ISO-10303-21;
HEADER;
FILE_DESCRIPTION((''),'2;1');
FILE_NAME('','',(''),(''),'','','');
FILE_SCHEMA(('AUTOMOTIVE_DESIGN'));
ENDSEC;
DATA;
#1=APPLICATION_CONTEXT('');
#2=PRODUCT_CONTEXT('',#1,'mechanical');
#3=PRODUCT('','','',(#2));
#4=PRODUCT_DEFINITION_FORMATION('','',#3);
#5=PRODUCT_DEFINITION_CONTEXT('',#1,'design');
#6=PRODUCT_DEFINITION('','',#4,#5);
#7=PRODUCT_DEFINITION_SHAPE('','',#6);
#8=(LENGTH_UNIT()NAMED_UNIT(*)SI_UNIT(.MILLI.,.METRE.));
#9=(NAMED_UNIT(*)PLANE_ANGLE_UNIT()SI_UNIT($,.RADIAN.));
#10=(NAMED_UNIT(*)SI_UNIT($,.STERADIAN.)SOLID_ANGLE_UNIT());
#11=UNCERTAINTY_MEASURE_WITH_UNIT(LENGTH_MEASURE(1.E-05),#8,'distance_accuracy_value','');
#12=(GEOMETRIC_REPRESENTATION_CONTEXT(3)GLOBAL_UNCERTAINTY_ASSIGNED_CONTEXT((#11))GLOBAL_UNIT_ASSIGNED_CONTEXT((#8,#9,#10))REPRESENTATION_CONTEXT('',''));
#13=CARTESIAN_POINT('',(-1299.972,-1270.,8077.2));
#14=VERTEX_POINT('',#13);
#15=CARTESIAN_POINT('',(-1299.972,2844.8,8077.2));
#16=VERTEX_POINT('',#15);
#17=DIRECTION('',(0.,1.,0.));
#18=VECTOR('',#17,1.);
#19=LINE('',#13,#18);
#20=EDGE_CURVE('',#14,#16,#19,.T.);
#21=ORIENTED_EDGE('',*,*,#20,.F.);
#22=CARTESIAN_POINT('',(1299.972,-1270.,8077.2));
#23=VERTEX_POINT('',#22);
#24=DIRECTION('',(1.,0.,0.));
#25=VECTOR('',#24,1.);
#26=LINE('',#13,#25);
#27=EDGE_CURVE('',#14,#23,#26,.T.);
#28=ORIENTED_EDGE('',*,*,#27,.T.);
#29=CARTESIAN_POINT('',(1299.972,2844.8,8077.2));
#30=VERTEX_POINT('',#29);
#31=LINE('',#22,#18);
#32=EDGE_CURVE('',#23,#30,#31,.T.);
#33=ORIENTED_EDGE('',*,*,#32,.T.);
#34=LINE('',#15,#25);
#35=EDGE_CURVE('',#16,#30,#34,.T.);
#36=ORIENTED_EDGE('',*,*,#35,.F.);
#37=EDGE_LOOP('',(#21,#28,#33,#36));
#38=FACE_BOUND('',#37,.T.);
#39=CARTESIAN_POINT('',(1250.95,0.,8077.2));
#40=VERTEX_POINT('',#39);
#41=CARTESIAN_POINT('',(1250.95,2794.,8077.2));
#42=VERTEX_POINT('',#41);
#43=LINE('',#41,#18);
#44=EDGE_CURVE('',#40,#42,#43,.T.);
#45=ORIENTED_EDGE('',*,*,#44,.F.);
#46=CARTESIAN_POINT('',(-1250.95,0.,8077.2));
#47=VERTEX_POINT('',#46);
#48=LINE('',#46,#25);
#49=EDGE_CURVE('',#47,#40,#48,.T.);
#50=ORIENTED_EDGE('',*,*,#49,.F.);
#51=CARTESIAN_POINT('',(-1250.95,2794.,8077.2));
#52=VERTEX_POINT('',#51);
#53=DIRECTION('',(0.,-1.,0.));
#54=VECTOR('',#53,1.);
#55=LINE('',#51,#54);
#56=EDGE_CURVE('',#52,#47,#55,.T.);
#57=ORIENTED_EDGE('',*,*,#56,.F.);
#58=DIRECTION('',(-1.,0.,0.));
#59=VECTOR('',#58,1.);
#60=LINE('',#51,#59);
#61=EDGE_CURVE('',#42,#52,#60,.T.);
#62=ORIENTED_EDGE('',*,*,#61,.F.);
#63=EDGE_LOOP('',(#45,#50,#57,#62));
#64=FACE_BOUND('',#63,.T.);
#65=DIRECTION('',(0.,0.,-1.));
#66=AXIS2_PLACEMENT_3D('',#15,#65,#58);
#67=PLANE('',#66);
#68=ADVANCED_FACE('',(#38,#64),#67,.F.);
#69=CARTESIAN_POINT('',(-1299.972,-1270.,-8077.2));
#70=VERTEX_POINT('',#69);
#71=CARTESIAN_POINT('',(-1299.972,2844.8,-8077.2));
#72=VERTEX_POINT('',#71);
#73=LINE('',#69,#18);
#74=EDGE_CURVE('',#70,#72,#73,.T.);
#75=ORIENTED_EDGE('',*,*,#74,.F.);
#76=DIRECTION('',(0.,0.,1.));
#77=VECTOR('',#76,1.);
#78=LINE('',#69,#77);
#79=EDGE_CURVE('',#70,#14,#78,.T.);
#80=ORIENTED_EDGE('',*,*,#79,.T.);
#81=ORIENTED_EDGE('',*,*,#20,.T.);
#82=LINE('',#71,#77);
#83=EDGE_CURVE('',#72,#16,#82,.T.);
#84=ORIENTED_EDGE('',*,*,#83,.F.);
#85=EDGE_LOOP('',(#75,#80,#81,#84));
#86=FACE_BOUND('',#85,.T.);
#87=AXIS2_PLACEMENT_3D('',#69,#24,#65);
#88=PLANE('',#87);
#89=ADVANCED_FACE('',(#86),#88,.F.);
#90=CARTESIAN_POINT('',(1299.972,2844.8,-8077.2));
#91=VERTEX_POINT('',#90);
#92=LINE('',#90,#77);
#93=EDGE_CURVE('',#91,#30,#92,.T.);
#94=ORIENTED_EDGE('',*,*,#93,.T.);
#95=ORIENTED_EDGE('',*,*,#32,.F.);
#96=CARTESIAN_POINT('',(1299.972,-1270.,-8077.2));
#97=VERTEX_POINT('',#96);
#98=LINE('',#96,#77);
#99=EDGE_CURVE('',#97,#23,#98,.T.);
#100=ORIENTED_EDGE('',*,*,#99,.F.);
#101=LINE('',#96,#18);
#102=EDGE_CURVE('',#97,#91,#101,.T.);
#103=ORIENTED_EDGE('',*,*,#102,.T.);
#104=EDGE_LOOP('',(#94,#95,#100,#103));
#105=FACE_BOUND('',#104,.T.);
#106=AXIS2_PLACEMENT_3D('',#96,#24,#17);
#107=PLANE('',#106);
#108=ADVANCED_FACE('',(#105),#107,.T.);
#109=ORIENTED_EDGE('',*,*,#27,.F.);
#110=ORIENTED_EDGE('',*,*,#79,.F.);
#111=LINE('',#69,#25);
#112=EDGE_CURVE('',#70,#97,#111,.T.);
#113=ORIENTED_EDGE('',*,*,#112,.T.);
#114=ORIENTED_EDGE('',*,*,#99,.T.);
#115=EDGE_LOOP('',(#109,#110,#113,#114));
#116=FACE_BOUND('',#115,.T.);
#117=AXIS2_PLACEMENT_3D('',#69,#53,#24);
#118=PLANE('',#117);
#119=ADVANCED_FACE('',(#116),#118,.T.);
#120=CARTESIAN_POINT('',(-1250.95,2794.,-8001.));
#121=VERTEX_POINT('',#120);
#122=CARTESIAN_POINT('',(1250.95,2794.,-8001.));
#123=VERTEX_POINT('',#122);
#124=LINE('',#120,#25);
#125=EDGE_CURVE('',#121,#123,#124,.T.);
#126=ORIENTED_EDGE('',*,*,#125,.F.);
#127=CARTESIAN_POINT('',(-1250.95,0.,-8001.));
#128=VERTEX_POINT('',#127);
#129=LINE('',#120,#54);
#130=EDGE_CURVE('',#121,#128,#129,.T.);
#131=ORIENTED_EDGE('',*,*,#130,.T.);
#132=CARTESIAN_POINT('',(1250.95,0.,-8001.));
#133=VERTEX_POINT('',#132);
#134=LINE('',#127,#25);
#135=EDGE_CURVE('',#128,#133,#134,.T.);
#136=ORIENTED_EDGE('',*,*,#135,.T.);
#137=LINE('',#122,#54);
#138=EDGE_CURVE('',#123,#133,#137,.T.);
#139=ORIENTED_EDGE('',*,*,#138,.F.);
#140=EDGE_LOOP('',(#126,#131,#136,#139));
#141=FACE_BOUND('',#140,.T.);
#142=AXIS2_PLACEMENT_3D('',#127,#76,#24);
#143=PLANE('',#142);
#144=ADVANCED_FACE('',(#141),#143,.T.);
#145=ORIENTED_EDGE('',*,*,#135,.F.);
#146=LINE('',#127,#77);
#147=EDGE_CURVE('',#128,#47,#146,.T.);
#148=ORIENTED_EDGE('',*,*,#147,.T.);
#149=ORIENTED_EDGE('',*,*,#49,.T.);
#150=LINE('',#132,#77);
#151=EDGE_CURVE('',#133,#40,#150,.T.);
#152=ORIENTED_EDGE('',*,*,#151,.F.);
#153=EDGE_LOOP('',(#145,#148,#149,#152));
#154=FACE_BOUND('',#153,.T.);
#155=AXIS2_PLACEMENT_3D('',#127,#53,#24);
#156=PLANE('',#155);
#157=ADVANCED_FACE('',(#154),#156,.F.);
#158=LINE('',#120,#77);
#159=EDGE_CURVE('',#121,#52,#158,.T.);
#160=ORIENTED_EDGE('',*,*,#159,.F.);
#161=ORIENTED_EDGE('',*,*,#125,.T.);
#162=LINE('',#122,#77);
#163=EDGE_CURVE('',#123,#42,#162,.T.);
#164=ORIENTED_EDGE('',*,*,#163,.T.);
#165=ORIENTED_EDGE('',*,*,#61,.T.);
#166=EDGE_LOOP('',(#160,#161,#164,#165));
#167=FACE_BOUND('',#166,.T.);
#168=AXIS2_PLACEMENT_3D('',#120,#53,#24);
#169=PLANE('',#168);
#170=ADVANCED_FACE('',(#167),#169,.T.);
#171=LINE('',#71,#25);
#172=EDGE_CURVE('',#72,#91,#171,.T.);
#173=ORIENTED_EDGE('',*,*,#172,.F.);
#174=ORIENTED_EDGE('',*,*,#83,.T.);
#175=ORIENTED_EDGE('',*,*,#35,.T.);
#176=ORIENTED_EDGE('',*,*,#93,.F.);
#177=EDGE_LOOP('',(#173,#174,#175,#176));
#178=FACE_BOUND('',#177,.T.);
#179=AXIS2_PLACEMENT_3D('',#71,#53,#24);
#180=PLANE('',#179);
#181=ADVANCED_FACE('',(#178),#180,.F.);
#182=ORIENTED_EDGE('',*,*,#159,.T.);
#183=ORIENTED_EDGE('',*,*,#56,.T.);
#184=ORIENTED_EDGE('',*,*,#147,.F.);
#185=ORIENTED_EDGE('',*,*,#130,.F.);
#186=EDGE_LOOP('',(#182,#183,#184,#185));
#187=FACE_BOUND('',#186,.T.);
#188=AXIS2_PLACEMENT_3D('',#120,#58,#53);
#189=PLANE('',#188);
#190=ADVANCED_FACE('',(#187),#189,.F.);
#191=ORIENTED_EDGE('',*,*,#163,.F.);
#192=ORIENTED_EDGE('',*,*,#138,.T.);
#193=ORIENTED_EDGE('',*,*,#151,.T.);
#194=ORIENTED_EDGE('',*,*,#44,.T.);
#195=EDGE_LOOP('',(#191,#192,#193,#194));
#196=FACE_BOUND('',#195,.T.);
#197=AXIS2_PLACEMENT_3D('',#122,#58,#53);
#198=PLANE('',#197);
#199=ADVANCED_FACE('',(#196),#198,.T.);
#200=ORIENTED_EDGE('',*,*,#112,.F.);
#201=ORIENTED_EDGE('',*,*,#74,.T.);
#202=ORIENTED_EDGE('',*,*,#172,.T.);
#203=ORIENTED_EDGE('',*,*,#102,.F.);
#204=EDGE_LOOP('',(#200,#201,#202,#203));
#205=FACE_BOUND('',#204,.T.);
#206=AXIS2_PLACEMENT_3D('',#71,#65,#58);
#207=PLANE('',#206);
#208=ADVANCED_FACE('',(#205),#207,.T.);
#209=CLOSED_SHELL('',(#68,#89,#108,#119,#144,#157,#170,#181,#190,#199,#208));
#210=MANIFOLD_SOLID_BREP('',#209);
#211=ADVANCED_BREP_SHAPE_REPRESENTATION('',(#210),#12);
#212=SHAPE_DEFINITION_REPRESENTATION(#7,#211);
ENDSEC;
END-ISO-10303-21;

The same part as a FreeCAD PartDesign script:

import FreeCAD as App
import Part
import Sketcher
from FreeCAD import Vector
Q = App.Units.Quantity

doc = App.newDocument("Part")
params = doc.addObject("Spreadsheet::Sheet", "Params")
for row, (alias, value) in enumerate([
    ("sketch1_height", "162 in"),
    ("sketch1_width", "102.36 in"),
    ("pad1_length", "636 in"),
    ("sketch2_height", "110 in"),
    ("sketch2_width", "98.5 in"),
    ("pocket1_length", "630 in"),
    ("sketch3_height", "110 in"),
    ("sketch3_width", "98.5 in"),
], start=1):
    params.set(f"A{row}", alias)
    params.set(f"B{row}", "=" + value)
    params.setAlias(f"B{row}", alias)

body = doc.addObject("PartDesign::Body", "Body")

sketch1 = body.newObject("Sketcher::SketchObject", "Sketch")
sketch1.AttachmentSupport = (doc.getObject("XY_Plane"), [""])
sketch1.MapMode = "FlatFace"
sketch1.addGeometry(Part.LineSegment(Vector(-1300, 2845, 0), Vector(-1300, -1270, 0)), False)
sketch1.addGeometry(Part.LineSegment(Vector(-1300, -1270, 0), Vector(1300, -1270, 0)), False)
sketch1.addGeometry(Part.LineSegment(Vector(1300, -1270, 0), Vector(1300, 2845, 0)), False)
sketch1.addGeometry(Part.LineSegment(Vector(1300, 2845, 0), Vector(-1300, 2845, 0)), False)
sketch1.addConstraint(Sketcher.Constraint("Coincident", 0, 2, 1, 1))
sketch1.addConstraint(Sketcher.Constraint("Coincident", 1, 2, 2, 1))
sketch1.addConstraint(Sketcher.Constraint("Coincident", 2, 2, 3, 1))
sketch1.addConstraint(Sketcher.Constraint("Coincident", 3, 2, 0, 1))
sketch1.addConstraint(Sketcher.Constraint("Vertical", 0))
sketch1.addConstraint(Sketcher.Constraint("Horizontal", 1))
sketch1.addConstraint(Sketcher.Constraint("Vertical", 2))
sketch1.addConstraint(Sketcher.Constraint("Horizontal", 3))
sketch1.addConstraint(Sketcher.Constraint("DistanceY", 0, 2, 0, 1, Q("162 in")))
sketch1.addConstraint(Sketcher.Constraint("DistanceY", 0, 2, -1, 1, Q("50 in")))
sketch1.addConstraint(Sketcher.Constraint("DistanceX", 1, 1, 1, 2, Q("102.36 in")))
sketch1.addConstraint(Sketcher.Constraint("DistanceX", 0, 2, -1, 1, Q("51.18 in")))
sketch1.setExpression("Constraints[8]", "Params.sketch1_height")
sketch1.setExpression("Constraints[10]", "Params.sketch1_width")
pad1 = body.newObject("PartDesign::Pad", "Pad")
pad1.Profile = sketch1
pad1.setExpression("Length", "Params.pad1_length")
pad1.Midplane = True

sketch2 = body.newObject("Sketcher::SketchObject", "Sketch001")
sketch2.AttachmentSupport = (doc.getObject("XY_Plane"), [""])
sketch2.MapMode = "FlatFace"
sketch2.addGeometry(Part.LineSegment(Vector(-1251, 2794, 0), Vector(-1251, 0, 0)), False)
sketch2.addGeometry(Part.LineSegment(Vector(-1251, 0, 0), Vector(1251, 0, 0)), False)
sketch2.addGeometry(Part.LineSegment(Vector(1251, 0, 0), Vector(1251, 2794, 0)), False)
sketch2.addGeometry(Part.LineSegment(Vector(1251, 2794, 0), Vector(-1251, 2794, 0)), False)
sketch2.addConstraint(Sketcher.Constraint("Coincident", 0, 2, 1, 1))
sketch2.addConstraint(Sketcher.Constraint("Coincident", 1, 2, 2, 1))
sketch2.addConstraint(Sketcher.Constraint("Coincident", 2, 2, 3, 1))
sketch2.addConstraint(Sketcher.Constraint("Coincident", 3, 2, 0, 1))
sketch2.addConstraint(Sketcher.Constraint("Vertical", 0))
sketch2.addConstraint(Sketcher.Constraint("Horizontal", 1))
sketch2.addConstraint(Sketcher.Constraint("Vertical", 2))
sketch2.addConstraint(Sketcher.Constraint("Horizontal", 3))
sketch2.addConstraint(Sketcher.Constraint("Symmetric", 0, 2, 1, 2, -1, 1))
sketch2.addConstraint(Sketcher.Constraint("DistanceY", 0, 2, 0, 1, Q("110 in")))
sketch2.addConstraint(Sketcher.Constraint("DistanceX", 1, 1, 1, 2, Q("98.5 in")))
sketch2.setExpression("Constraints[9]", "Params.sketch2_height")
sketch2.setExpression("Constraints[10]", "Params.sketch2_width")
pocket1 = body.newObject("PartDesign::Pocket", "Pocket")
pocket1.Profile = sketch2
pocket1.setExpression("Length", "Params.pocket1_length")
pocket1.Midplane = True

sketch3 = body.newObject("Sketcher::SketchObject", "Sketch002")
sketch3.AttachmentSupport = (doc.getObject("XY_Plane"), [""])
sketch3.MapMode = "FlatFace"
sketch3.AttachmentOffset = App.Placement(Vector(0, 0, 318 * 25.4), App.Rotation())
sketch3.addGeometry(Part.LineSegment(Vector(-1251, 2794, 0), Vector(-1251, 0, 0)), False)
sketch3.addGeometry(Part.LineSegment(Vector(-1251, 0, 0), Vector(1251, 0, 0)), False)
sketch3.addGeometry(Part.LineSegment(Vector(1251, 0, 0), Vector(1251, 2794, 0)), False)
sketch3.addGeometry(Part.LineSegment(Vector(1251, 2794, 0), Vector(-1251, 2794, 0)), False)
sketch3.addConstraint(Sketcher.Constraint("Coincident", 0, 2, 1, 1))
sketch3.addConstraint(Sketcher.Constraint("Coincident", 1, 2, 2, 1))
sketch3.addConstraint(Sketcher.Constraint("Coincident", 2, 2, 3, 1))
sketch3.addConstraint(Sketcher.Constraint("Coincident", 3, 2, 0, 1))
sketch3.addConstraint(Sketcher.Constraint("Vertical", 0))
sketch3.addConstraint(Sketcher.Constraint("Horizontal", 1))
sketch3.addConstraint(Sketcher.Constraint("Vertical", 2))
sketch3.addConstraint(Sketcher.Constraint("Horizontal", 3))
sketch3.addConstraint(Sketcher.Constraint("Symmetric", 0, 2, 1, 2, -1, 1))
sketch3.addConstraint(Sketcher.Constraint("DistanceY", 0, 2, 0, 1, Q("110 in")))
sketch3.addConstraint(Sketcher.Constraint("DistanceX", 1, 1, 1, 2, Q("98.5 in")))
sketch3.setExpression("Constraints[9]", "Params.sketch3_height")
sketch3.setExpression("Constraints[10]", "Params.sketch3_width")
pocket2 = body.newObject("PartDesign::Pocket", "Pocket001")
pocket2.Profile = sketch3
pocket2.Type = "UpToFirst"

doc.recompute()
